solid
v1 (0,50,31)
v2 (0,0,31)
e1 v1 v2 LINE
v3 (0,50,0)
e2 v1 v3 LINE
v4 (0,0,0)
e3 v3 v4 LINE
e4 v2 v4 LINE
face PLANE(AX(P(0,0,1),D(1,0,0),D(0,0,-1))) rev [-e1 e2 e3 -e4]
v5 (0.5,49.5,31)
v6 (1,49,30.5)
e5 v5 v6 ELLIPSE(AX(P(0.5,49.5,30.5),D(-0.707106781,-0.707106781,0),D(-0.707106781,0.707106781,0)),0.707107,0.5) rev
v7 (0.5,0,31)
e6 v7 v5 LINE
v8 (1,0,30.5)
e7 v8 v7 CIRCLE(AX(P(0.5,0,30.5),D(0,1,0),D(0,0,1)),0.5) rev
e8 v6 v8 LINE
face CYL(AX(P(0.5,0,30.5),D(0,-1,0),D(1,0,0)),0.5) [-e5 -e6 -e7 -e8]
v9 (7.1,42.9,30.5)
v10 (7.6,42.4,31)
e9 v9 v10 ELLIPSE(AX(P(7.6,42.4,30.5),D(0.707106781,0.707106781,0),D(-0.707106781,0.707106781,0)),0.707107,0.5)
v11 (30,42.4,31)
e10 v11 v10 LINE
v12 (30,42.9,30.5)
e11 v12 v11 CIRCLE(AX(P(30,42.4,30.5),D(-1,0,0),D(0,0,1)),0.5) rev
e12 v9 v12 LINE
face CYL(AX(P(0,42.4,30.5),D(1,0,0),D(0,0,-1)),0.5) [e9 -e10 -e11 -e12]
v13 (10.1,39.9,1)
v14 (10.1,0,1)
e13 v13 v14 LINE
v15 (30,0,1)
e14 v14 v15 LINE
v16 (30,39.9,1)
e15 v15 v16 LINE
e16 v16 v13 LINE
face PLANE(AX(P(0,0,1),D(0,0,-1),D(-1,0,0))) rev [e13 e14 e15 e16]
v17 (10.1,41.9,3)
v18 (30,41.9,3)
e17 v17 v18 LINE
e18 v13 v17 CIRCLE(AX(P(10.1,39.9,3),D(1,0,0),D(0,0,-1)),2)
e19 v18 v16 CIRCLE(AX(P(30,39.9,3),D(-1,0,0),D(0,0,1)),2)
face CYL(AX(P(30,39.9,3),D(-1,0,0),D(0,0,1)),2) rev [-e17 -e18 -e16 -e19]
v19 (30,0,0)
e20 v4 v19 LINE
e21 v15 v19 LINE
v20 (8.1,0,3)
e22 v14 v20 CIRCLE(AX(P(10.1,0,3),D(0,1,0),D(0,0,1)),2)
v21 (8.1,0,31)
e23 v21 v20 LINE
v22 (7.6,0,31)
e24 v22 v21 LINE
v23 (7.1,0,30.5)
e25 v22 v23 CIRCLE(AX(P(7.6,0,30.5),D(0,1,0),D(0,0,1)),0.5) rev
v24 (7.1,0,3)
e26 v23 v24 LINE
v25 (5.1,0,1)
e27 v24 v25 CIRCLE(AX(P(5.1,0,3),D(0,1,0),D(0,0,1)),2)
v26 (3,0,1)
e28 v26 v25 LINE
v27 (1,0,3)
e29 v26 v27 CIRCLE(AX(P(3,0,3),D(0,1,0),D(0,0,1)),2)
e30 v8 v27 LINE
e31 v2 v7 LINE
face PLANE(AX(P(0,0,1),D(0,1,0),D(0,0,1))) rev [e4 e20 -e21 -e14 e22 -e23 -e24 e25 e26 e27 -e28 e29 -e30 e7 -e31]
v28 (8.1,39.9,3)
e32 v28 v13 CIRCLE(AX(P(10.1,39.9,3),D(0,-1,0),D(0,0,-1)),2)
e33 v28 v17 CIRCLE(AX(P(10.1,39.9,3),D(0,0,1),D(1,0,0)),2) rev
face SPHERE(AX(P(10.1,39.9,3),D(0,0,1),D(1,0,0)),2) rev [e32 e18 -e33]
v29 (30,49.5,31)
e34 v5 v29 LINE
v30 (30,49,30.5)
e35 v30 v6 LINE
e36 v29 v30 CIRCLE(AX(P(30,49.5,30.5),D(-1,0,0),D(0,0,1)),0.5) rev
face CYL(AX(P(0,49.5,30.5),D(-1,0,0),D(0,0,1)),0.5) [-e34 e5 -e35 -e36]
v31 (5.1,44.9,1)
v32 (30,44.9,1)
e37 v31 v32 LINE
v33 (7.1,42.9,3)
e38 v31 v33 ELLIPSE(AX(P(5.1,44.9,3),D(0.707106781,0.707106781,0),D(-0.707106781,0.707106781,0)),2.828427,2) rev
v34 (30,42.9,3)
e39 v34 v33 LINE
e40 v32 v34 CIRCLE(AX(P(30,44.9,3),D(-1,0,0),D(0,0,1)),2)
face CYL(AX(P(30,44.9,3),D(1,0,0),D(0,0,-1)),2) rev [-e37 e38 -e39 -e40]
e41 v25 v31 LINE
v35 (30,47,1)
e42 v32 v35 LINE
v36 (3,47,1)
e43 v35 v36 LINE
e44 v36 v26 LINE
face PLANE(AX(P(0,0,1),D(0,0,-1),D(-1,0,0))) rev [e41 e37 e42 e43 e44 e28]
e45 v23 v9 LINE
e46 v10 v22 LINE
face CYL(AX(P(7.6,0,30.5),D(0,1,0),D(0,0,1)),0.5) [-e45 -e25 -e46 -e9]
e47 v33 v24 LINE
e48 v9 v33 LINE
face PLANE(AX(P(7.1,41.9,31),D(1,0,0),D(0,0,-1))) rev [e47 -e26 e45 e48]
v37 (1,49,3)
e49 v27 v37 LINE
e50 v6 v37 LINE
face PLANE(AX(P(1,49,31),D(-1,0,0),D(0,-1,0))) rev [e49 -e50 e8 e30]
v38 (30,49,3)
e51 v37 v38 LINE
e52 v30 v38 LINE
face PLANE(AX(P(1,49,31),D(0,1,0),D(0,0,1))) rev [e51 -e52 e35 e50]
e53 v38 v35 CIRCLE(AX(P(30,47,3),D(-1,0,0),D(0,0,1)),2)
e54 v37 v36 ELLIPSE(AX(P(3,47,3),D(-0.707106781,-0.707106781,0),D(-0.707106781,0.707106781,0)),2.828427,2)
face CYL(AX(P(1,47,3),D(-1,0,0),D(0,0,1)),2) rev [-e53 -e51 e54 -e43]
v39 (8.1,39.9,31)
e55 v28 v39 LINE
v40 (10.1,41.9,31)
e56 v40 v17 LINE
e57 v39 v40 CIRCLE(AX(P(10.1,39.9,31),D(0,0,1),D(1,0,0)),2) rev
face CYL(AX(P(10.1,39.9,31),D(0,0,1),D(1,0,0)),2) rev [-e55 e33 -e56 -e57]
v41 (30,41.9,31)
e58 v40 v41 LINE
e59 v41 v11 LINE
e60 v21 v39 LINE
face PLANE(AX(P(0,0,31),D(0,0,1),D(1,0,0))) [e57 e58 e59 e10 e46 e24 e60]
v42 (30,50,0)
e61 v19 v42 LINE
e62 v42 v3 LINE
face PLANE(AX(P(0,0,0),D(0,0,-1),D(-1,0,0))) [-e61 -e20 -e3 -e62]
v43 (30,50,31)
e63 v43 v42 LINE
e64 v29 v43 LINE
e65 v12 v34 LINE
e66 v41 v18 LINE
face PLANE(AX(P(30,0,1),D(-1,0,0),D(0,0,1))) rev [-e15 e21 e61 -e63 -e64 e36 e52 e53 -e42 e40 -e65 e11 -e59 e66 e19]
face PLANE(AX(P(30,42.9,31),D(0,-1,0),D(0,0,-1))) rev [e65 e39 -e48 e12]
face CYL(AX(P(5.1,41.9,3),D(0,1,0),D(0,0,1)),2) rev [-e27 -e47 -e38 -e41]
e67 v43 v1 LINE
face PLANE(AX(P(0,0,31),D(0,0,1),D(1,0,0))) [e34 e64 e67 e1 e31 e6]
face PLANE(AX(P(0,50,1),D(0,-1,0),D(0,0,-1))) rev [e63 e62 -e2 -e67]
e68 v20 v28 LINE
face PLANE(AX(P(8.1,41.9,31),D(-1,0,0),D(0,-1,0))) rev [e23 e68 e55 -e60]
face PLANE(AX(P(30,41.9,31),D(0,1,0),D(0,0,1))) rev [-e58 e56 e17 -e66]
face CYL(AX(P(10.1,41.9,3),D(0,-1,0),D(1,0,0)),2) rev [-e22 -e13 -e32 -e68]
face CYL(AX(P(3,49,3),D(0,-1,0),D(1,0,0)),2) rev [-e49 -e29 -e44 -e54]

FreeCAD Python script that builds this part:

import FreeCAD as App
import Part
import Sketcher
from FreeCAD import Vector
Q = App.Units.Quantity


def edges_at(feature, points):
    """Names of the edges that pass closest to the given points."""
    edges = feature.Shape.Edges
    near = lambda p: min(range(len(edges)), key=lambda i: edges[i].distToShape(Part.Vertex(*p))[0])
    return sorted({f"Edge{near(p) + 1}" for p in points})


def add_polygon(sketch, points):
    """Adds a closed chain of lines whose ends are joined by coincident constraints."""
    first, n = sketch.GeometryCount, len(points)
    for a, b in zip(points, points[1:] + points[:1]):
        sketch.addGeometry(Part.LineSegment(App.Vector(*a, 0), App.Vector(*b, 0)), False)
    for i in range(n):
        sketch.addConstraint(Sketcher.Constraint("Coincident", first + i, 2, first + (i + 1) % n, 1))

doc = App.newDocument("Part")
body = doc.addObject("PartDesign::Body", "Body")

# Sketch on XY plane
sketch1 = body.newObject("Sketcher::SketchObject", "Sketch")
sketch1.AttachmentSupport = (doc.getObject("XY_Plane"), [""])
sketch1.MapMode = "FlatFace"
add_polygon(sketch1, [(0, 50), (0, 0), (30, 0), (30, 50)])  # lines 0-3
sketch1.addConstraint(Sketcher.Constraint("Vertical", 0))
sketch1.addConstraint(Sketcher.Constraint("Horizontal", 1))
sketch1.addConstraint(Sketcher.Constraint("Vertical", 2))
sketch1.addConstraint(Sketcher.Constraint("Horizontal", 3))
sketch1.addConstraint(Sketcher.Constraint("Coincident", 0, 2, -1, 1))
sketch1.addConstraint(Sketcher.Constraint("DistanceX", 1, 1, 1, 2, Q("30 mm")))
sketch1.addConstraint(Sketcher.Constraint("DistanceY", 0, 2, 0, 1, Q("50 mm")))
pad1 = body.newObject("PartDesign::Pad", "Pad")
pad1.Profile = sketch1
pad1.Length = 1

# Sketch on XY plane
sketch2 = body.newObject("Sketcher::SketchObject", "Sketch001")
sketch2.AttachmentSupport = (doc.getObject("XY_Plane"), [""])
sketch2.MapMode = "FlatFace"
sketch2.AttachmentOffset = App.Placement(Vector(0, 0, 1), App.Rotation())
add_polygon(sketch2, [(30, 50), (0, 50), (0, 0), (1, 0), (1, 49), (30, 49)])  # lines 0-5
add_polygon(sketch2, [(8.1, 41.9), (30, 41.9), (30, 42.9), (7.1, 42.9), (7.1, 0), (8.1, 0)])  # lines 6-11
sketch2.addConstraint(Sketcher.Constraint("Horizontal", 0))
sketch2.addConstraint(Sketcher.Constraint("Vertical", 1))
sketch2.addConstraint(Sketcher.Constraint("Horizontal", 2))
sketch2.addConstraint(Sketcher.Constraint("Vertical", 3))
sketch2.addConstraint(Sketcher.Constraint("Horizontal", 4))
sketch2.addConstraint(Sketcher.Constraint("Vertical", 5))
sketch2.addConstraint(Sketcher.Constraint("Horizontal", 6))
sketch2.addConstraint(Sketcher.Constraint("Vertical", 7))
sketch2.addConstraint(Sketcher.Constraint("Horizontal", 8))
sketch2.addConstraint(Sketcher.Constraint("Vertical", 9))
sketch2.addConstraint(Sketcher.Constraint("Horizontal", 10))
sketch2.addConstraint(Sketcher.Constraint("Vertical", 11))
sketch2.addConstraint(Sketcher.Constraint("Coincident", 1, 2, -1, 1))
sketch2.addConstraint(Sketcher.Constraint("PointOnObject", 9, 2, -1))
sketch2.addConstraint(Sketcher.Constraint("Vertical", 5, 2, 6, 2))
sketch2.addConstraint(Sketcher.Constraint("Equal", 2, 10))
sketch2.addConstraint(Sketcher.Constraint("Equal", 10, 5))
sketch2.addConstraint(Sketcher.Constraint("Equal", 5, 7))
sketch2.addConstraint(Sketcher.Constraint("DistanceX", 0, 2, 0, 1, Q("30 mm")))
sketch2.addConstraint(Sketcher.Constraint("DistanceX", 2, 1, 2, 2, Q("1 mm")))
sketch2.addConstraint(Sketcher.Constraint("DistanceY", 1, 2, 1, 1, Q("50 mm")))
sketch2.addConstraint(Sketcher.Constraint("DistanceX", 6, 1, 6, 2, Q("21.9 mm")))
sketch2.addConstraint(Sketcher.Constraint("DistanceY", 9, 2, 9, 1, Q("42.9 mm")))
pad2 = body.newObject("PartDesign::Pad", "Pad001")
pad2.Profile = sketch2
pad2.Length = 30
doc.recompute()

fillet = body.newObject("PartDesign::Fillet", "Fillet")
fillet.Base = (pad2, edges_at(pad2, [
    (1, 24.5, 1),
    (15.5, 49, 1),
    (18.55, 42.9, 1),
    (7.1, 21.45, 1),
    (8.1, 20.95, 1),
    (19.05, 41.9, 1),
    (8.1, 41.9, 16),
]))
fillet.Radius = 2
doc.recompute()

fillet2 = body.newObject("PartDesign::Fillet", "Fillet001")
fillet2.Base = (fillet, edges_at(fillet, [
    (1, 24.5, 31),
    (15.5, 49, 31),
    (18.55, 42.9, 31),
    (7.1, 21.45, 31),
]))
fillet2.Radius = 0.5

doc.recompute()
